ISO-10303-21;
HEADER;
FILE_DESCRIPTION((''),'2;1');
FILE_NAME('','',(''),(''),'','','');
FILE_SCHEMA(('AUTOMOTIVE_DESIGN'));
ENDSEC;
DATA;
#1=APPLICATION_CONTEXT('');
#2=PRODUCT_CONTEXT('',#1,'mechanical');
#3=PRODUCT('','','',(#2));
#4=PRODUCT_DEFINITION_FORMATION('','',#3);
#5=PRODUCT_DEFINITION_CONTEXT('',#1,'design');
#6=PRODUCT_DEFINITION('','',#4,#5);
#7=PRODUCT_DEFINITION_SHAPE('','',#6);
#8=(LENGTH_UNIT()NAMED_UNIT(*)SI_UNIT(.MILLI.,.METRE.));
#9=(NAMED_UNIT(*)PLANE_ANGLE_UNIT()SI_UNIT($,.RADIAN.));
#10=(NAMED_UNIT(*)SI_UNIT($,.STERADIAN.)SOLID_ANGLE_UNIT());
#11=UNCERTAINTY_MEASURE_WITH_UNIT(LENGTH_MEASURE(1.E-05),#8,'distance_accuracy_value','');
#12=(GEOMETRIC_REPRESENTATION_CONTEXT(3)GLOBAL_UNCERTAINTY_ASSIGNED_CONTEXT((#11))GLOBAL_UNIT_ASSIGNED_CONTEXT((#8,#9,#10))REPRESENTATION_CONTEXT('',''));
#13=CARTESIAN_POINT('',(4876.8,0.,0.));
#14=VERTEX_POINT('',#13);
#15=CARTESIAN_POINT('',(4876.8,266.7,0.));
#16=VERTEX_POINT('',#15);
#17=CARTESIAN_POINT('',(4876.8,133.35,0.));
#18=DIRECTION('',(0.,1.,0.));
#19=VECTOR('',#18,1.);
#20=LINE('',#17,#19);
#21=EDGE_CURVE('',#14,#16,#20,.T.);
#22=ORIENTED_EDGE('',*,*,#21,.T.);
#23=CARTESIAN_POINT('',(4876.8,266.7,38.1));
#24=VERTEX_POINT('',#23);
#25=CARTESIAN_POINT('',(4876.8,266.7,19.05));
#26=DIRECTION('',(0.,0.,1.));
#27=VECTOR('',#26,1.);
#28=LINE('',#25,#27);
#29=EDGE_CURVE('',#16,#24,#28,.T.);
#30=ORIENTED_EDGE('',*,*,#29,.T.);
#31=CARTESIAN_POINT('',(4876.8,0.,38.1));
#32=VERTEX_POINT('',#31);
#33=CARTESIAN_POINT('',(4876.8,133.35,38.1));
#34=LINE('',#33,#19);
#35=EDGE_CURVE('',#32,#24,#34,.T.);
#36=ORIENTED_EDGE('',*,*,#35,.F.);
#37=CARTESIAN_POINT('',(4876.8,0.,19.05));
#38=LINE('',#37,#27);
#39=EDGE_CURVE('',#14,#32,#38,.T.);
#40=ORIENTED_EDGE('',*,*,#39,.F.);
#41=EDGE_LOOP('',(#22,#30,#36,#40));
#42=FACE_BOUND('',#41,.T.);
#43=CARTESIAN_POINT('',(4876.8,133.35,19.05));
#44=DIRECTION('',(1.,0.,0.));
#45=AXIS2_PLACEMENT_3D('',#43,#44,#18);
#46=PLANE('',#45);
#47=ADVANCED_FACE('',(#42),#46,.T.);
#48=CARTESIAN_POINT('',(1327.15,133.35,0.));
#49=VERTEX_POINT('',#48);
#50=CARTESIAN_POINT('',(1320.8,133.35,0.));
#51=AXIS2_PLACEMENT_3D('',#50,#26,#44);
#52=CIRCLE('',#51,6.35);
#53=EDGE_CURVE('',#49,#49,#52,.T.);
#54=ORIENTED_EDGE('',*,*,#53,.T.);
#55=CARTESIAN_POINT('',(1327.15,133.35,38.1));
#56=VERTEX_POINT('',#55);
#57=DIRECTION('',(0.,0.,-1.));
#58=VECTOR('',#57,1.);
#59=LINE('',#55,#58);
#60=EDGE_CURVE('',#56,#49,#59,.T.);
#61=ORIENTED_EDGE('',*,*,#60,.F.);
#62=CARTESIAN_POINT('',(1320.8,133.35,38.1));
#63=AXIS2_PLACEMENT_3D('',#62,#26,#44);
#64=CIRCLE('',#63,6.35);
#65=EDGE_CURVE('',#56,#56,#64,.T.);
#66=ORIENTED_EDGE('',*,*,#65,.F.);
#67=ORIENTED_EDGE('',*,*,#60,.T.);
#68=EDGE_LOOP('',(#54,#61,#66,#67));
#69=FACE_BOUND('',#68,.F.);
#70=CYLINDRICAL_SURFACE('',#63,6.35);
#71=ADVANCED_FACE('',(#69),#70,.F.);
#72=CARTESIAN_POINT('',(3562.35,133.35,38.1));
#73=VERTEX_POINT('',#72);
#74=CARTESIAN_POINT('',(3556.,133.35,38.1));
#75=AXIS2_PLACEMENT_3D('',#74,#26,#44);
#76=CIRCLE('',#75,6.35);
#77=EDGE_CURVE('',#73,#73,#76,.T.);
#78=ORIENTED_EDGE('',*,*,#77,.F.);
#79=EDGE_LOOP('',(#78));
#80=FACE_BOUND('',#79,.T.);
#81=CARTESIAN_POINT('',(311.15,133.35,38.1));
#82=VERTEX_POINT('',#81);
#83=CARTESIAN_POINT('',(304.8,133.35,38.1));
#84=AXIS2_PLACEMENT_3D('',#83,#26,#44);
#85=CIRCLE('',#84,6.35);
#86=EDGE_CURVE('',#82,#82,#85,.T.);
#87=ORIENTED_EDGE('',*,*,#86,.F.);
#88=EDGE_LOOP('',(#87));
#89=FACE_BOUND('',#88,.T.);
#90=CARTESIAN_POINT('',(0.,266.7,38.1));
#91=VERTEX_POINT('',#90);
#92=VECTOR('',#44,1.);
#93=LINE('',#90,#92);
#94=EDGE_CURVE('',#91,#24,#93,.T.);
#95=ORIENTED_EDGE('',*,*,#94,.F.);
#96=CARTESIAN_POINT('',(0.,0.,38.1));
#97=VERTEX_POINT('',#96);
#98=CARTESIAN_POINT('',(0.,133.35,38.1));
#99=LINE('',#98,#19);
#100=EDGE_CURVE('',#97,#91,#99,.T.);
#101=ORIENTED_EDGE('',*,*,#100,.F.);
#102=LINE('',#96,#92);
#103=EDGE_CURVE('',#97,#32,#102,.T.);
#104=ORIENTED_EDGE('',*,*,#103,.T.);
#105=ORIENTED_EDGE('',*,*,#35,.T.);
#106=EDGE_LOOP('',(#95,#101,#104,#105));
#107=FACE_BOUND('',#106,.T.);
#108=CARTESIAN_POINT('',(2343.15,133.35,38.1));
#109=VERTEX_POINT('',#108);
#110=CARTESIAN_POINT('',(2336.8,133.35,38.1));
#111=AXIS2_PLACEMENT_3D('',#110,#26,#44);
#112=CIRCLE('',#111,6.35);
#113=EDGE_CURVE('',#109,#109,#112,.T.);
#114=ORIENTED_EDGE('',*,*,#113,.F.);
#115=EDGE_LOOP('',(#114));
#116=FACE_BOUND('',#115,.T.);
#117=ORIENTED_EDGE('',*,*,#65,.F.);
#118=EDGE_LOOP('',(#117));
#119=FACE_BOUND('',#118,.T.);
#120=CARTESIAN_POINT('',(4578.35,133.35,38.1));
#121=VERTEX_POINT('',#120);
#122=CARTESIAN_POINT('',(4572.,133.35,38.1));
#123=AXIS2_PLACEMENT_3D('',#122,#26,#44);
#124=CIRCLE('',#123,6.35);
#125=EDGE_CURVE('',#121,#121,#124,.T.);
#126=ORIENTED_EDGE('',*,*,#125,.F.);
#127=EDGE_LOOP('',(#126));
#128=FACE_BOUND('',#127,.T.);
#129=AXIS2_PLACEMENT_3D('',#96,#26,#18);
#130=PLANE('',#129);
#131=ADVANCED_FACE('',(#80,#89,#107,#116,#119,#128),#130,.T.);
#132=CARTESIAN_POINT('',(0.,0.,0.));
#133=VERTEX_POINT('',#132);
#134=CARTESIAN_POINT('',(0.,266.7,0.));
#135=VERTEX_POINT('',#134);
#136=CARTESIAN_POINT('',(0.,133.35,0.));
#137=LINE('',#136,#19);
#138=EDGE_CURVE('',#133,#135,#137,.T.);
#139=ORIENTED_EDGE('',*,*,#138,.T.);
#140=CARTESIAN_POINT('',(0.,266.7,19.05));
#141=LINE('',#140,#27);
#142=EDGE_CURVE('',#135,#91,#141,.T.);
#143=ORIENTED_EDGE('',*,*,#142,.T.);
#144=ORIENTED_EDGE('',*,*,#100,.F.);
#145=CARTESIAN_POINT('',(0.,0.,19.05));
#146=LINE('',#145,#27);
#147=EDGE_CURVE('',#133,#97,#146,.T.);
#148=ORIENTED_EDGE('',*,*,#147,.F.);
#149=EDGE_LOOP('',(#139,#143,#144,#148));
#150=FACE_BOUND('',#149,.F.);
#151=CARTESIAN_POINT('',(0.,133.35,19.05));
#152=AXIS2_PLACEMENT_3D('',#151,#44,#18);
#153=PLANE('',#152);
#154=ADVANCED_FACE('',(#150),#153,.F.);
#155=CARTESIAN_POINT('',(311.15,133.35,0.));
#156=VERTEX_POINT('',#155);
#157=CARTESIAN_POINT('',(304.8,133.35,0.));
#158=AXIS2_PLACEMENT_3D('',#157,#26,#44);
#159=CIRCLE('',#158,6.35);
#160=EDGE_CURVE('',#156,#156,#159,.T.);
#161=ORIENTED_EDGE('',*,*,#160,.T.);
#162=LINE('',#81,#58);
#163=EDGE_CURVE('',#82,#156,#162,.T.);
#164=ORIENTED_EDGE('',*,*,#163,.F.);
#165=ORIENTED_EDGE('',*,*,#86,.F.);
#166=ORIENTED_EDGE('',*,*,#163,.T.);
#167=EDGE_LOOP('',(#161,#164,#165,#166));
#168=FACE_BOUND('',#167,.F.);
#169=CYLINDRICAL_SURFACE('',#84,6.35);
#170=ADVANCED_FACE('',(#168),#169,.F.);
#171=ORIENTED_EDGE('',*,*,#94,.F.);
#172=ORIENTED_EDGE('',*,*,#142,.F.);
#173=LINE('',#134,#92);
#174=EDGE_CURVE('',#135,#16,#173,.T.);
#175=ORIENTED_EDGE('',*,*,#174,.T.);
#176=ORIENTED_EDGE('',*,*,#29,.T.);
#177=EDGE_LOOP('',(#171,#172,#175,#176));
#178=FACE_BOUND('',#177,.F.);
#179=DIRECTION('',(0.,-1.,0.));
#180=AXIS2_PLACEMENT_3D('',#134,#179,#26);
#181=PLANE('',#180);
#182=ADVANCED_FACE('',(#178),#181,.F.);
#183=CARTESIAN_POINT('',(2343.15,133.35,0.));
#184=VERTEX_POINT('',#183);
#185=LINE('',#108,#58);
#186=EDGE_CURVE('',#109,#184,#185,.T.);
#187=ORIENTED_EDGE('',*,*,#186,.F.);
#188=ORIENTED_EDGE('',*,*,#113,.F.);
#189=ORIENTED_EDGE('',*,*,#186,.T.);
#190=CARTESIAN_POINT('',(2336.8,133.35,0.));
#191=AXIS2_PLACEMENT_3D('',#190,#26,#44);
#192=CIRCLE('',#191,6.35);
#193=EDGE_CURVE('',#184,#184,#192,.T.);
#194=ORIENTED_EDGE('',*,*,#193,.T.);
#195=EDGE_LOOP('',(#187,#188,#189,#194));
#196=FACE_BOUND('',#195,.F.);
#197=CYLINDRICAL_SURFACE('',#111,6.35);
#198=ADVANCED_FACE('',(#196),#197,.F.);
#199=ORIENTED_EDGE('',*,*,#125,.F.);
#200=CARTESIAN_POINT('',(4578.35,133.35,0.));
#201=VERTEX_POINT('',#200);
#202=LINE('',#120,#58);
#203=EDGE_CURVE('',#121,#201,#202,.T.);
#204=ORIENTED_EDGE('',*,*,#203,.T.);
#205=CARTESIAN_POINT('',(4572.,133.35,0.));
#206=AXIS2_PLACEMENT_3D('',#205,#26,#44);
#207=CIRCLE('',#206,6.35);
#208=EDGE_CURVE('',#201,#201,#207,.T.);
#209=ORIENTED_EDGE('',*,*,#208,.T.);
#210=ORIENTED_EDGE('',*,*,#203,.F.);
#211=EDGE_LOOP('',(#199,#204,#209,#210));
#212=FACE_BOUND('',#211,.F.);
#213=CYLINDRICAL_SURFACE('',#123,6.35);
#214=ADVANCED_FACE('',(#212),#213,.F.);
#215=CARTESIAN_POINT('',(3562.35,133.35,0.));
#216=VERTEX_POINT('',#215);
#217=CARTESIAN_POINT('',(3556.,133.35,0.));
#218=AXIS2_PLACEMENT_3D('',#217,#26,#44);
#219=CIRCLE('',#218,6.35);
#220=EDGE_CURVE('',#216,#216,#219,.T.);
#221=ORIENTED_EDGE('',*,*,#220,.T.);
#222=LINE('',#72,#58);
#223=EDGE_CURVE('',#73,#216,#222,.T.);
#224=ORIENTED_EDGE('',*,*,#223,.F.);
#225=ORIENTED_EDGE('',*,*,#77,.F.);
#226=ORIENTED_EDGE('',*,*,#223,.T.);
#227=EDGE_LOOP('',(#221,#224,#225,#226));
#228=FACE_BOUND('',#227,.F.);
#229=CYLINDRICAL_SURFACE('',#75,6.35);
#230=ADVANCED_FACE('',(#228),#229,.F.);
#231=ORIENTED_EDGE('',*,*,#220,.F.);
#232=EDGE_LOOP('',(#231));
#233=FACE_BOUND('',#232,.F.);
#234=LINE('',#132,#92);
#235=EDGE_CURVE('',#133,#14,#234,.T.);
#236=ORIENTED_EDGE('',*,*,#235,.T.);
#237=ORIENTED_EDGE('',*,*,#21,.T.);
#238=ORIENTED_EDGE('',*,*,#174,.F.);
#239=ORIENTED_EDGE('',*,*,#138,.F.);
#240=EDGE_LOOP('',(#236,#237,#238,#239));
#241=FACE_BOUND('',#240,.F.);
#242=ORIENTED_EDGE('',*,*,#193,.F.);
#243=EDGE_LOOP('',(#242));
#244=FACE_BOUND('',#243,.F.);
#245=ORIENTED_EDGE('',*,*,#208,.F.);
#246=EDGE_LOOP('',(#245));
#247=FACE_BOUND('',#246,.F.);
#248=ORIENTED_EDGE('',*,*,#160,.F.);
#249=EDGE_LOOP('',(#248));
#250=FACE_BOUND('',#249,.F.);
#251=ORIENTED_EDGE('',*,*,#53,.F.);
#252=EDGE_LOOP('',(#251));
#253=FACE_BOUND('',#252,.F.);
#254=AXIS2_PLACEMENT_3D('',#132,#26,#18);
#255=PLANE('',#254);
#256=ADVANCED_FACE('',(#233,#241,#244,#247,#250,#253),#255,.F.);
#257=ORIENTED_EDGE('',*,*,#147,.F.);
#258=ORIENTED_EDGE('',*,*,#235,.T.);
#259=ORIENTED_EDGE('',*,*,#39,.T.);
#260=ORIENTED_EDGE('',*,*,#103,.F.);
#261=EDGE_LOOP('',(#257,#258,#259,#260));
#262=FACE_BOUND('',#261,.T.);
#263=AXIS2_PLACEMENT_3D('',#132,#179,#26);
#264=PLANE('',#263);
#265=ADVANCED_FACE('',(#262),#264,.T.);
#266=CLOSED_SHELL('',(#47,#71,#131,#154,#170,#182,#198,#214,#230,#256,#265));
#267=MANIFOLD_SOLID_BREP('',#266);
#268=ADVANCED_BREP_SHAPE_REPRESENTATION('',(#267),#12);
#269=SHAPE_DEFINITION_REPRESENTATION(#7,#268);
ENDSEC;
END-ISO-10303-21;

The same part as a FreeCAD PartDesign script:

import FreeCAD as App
import Part
import Sketcher
Q = App.Units.Quantity


def add_polygon(sketch, points):
    """Adds a closed chain of lines whose ends are joined by coincident constraints."""
    first, n = sketch.GeometryCount, len(points)
    for a, b in zip(points, points[1:] + points[:1]):
        sketch.addGeometry(Part.LineSegment(App.Vector(*a, 0), App.Vector(*b, 0)), False)
    for i in range(n):
        sketch.addConstraint(Sketcher.Constraint("Coincident", first + i, 2, first + (i + 1) % n, 1))

doc = App.newDocument("Part")
body = doc.addObject("PartDesign::Body", "Body")

# Sketch on YZ plane
sketch1 = doc.addObject("Sketcher::SketchObject", "Sketch")
body.addObject(sketch1)
sketch1.AttachmentSupport = (doc.YZ_Plane, [""])
sketch1.MapMode = "FlatFace"
add_polygon(sketch1, [(0, 38.1), (0, 0), (266.7, 0), (266.7, 38.1)])  # lines 0-3
sketch1.addConstraint(Sketcher.Constraint("Vertical", 0))
sketch1.addConstraint(Sketcher.Constraint("Horizontal", 1))
sketch1.addConstraint(Sketcher.Constraint("Vertical", 2))
sketch1.addConstraint(Sketcher.Constraint("Horizontal", 3))
sketch1.addConstraint(Sketcher.Constraint("Coincident", 0, 2, -1, 1))
sketch1.addConstraint(Sketcher.Constraint("DistanceX", 1, 1, 1, 2, Q("10.5 in")))
sketch1.addConstraint(Sketcher.Constraint("DistanceY", 0, 2, 0, 1, Q("1.5 in")))
pad1 = doc.addObject("PartDesign::Pad", "Pad")
body.addObject(pad1)
pad1.Profile = sketch1
pad1.Length = Q("192 in")

# Sketch on XY plane
sketch2 = doc.addObject("Sketcher::SketchObject", "Sketch001")
body.addObject(sketch2)
sketch2.AttachmentSupport = (doc.XY_Plane, [""])
sketch2.MapMode = "FlatFace"
sketch2.AttachmentOffset = App.Placement(App.Vector(0, 0, 1.5 * 25.4), App.Rotation())
sketch2.addGeometry(Part.Circle(App.Vector(304.8, 133.35, 0), App.Vector(0, 0, 1), 6.35), False)
sketch2.addGeometry(Part.Circle(App.Vector(2336.8, 133.35, 0), App.Vector(0, 0, 1), 6.35), False)
sketch2.addGeometry(Part.Circle(App.Vector(1320.8, 133.35, 0), App.Vector(0, 0, 1), 6.35), False)
sketch2.addGeometry(Part.Circle(App.Vector(3556, 133.35, 0), App.Vector(0, 0, 1), 6.35), False)
sketch2.addGeometry(Part.Circle(App.Vector(4572, 133.35, 0), App.Vector(0, 0, 1), 6.35), False)
sketch2.addConstraint(Sketcher.Constraint("Equal", 0, 1))
sketch2.addConstraint(Sketcher.Constraint("Equal", 1, 2))
sketch2.addConstraint(Sketcher.Constraint("Equal", 2, 3))
sketch2.addConstraint(Sketcher.Constraint("Equal", 3, 4))
sketch2.addConstraint(Sketcher.Constraint("Horizontal", 0, 3, 1, 3))
sketch2.addConstraint(Sketcher.Constraint("Horizontal", 1, 3, 2, 3))
sketch2.addConstraint(Sketcher.Constraint("Horizontal", 2, 3, 3, 3))
sketch2.addConstraint(Sketcher.Constraint("Horizontal", 3, 3, 4, 3))
sketch2.addConstraint(Sketcher.Constraint("Diameter", 0, Q("0.5 in")))
sketch2.addConstraint(Sketcher.Constraint("DistanceX", -1, 1, 0, 3, Q("12 in")))
sketch2.addConstraint(Sketcher.Constraint("DistanceX", -1, 1, 1, 3, Q("92 in")))
sketch2.addConstraint(Sketcher.Constraint("DistanceX", -1, 1, 2, 3, Q("52 in")))
sketch2.addConstraint(Sketcher.Constraint("DistanceX", -1, 1, 3, 3, Q("140 in")))
sketch2.addConstraint(Sketcher.Constraint("DistanceX", -1, 1, 4, 3, Q("180 in")))
sketch2.addConstraint(Sketcher.Constraint("DistanceY", -1, 1, 0, 3, Q("5.25 in")))
pocket1 = doc.addObject("PartDesign::Pocket", "Pocket")
body.addObject(pocket1)
pocket1.Profile = sketch2
pocket1.Type = "ThroughAll"

doc.recompute()
